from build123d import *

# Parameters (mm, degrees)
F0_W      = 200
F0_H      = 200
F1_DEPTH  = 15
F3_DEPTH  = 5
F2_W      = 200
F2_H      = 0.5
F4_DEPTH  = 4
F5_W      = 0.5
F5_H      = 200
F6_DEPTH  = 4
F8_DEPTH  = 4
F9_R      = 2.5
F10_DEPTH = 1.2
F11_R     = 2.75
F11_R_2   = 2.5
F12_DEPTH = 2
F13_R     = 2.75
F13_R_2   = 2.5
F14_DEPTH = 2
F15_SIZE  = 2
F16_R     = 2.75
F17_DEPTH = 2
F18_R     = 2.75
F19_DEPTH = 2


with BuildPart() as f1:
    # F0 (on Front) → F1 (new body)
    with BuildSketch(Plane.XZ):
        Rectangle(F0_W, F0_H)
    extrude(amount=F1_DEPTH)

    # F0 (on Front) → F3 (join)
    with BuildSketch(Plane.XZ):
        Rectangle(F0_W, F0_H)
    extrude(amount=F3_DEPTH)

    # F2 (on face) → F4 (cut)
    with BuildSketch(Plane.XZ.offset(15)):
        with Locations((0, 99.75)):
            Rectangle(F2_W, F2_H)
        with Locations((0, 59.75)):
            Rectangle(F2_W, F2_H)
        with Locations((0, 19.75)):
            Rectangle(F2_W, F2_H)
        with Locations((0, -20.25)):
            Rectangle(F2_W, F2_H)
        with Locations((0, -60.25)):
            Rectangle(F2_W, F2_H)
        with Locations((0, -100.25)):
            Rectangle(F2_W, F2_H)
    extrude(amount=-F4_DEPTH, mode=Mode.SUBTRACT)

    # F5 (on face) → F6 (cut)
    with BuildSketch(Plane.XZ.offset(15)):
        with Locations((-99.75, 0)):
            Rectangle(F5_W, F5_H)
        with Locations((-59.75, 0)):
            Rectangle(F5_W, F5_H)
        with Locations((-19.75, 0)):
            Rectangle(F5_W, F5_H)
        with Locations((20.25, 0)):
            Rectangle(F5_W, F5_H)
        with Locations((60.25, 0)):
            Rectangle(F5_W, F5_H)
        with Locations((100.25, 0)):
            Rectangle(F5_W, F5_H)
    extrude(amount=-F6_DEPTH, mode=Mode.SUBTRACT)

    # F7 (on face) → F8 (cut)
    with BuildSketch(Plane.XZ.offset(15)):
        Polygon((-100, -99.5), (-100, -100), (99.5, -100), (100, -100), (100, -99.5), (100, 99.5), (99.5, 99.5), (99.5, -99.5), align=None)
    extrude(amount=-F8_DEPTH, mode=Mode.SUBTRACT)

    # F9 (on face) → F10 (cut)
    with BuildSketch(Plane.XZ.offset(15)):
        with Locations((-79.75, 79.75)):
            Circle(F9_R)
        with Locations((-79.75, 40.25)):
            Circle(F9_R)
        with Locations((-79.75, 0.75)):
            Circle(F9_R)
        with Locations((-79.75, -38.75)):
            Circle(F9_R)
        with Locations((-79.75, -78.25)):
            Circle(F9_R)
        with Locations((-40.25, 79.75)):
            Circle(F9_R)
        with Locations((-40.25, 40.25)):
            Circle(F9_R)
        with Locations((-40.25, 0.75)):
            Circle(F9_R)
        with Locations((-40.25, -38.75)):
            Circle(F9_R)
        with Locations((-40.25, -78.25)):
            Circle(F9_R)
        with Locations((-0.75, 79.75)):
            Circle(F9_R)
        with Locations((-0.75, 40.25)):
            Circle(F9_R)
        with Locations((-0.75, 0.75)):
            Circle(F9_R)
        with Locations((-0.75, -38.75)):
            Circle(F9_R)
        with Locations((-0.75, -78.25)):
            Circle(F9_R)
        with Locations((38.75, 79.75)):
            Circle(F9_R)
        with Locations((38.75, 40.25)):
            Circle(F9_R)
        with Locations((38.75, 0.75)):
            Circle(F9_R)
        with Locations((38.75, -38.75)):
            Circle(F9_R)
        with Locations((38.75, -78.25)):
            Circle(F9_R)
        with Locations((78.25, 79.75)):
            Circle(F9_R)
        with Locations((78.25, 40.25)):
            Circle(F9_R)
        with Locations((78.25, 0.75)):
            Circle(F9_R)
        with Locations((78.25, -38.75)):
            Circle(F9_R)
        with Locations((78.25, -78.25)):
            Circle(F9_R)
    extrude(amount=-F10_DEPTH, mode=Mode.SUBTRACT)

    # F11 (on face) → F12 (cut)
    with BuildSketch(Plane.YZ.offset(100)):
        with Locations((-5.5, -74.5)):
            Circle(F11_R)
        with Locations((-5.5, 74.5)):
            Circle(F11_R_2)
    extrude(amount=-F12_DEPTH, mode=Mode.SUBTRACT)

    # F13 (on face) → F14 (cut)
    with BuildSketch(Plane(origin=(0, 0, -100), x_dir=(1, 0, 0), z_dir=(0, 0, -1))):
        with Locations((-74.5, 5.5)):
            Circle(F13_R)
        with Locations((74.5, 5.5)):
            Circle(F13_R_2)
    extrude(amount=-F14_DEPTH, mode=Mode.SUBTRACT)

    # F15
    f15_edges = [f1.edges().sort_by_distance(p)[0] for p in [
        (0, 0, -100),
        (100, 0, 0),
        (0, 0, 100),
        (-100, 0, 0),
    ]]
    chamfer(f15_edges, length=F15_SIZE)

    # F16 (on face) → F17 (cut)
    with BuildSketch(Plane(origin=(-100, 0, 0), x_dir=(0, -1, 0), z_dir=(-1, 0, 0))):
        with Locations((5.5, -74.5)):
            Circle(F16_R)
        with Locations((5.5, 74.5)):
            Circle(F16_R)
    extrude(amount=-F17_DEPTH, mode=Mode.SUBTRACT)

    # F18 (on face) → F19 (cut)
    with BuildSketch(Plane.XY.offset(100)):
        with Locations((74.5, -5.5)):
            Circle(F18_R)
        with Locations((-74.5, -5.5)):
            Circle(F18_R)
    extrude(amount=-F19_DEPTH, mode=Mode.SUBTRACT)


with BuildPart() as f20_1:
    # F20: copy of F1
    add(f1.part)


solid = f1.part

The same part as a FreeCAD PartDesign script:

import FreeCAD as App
import Part
import Sketcher
from FreeCAD import Vector


def edges_at(feature, points):
    """Names of the edges that pass closest to the given points."""
    edges = feature.Shape.Edges
    near = lambda p: min(range(len(edges)), key=lambda i: edges[i].distToShape(Part.Vertex(*p))[0])
    return sorted({f"Edge{near(p) + 1}" for p in points})

doc = App.newDocument("Part")
body = doc.addObject("PartDesign::Body", "Body")

# Sketch on XZ plane
sketch1 = doc.addObject("Sketcher::SketchObject", "Sketch")
body.addObject(sketch1)
sketch1.AttachmentSupport = (doc.XZ_Plane, [""])
sketch1.MapMode = "FlatFace"
sketch1.addGeometry([
    Part.LineSegment(Vector(-100, 100, 0), Vector(-100, -100, 0)),
    Part.LineSegment(Vector(-100, -100, 0), Vector(100, -100, 0)),
    Part.LineSegment(Vector(100, -100, 0), Vector(100, 100, 0)),
    Part.LineSegment(Vector(100, 100, 0), Vector(-100, 100, 0)),
], False)
sketch1.addConstraint([
    Sketcher.Constraint("Coincident", 0, 2, 1, 1),
    Sketcher.Constraint("Coincident", 1, 2, 2, 1),
    Sketcher.Constraint("Coincident", 2, 2, 3, 1),
    Sketcher.Constraint("Coincident", 3, 2, 0, 1),
    Sketcher.Constraint("Vertical", 0),
    Sketcher.Constraint("Horizontal", 1),
    Sketcher.Constraint("Vertical", 2),
    Sketcher.Constraint("Horizontal", 3),
    Sketcher.Constraint("Symmetric", 0, 2, 2, 2, -1, 1),
    Sketcher.Constraint("Equal", 3, 0),
    Sketcher.Constraint("DistanceX", 1, 1, 1, 2, 200.0),
])
pad1 = doc.addObject("PartDesign::Pad", "Pad")
body.addObject(pad1)
pad1.Profile = sketch1
pad1.Length = 15

# Sketch on XZ plane
sketch2 = doc.addObject("Sketcher::SketchObject", "Sketch001")
body.addObject(sketch2)
sketch2.AttachmentSupport = (doc.XZ_Plane, [""])
sketch2.MapMode = "FlatFace"
sketch2.addGeometry([
    Part.LineSegment(Vector(-100, 100, 0), Vector(-100, -100, 0)),
    Part.LineSegment(Vector(-100, -100, 0), Vector(100, -100, 0)),
    Part.LineSegment(Vector(100, -100, 0), Vector(100, 100, 0)),
    Part.LineSegment(Vector(100, 100, 0), Vector(-100, 100, 0)),
], False)
sketch2.addConstraint([
    Sketcher.Constraint("Coincident", 0, 2, 1, 1),
    Sketcher.Constraint("Coincident", 1, 2, 2, 1),
    Sketcher.Constraint("Coincident", 2, 2, 3, 1),
    Sketcher.Constraint("Coincident", 3, 2, 0, 1),
    Sketcher.Constraint("Vertical", 0),
    Sketcher.Constraint("Horizontal", 1),
    Sketcher.Constraint("Vertical", 2),
    Sketcher.Constraint("Horizontal", 3),
    Sketcher.Constraint("Symmetric", 0, 2, 2, 2, -1, 1),
    Sketcher.Constraint("Equal", 3, 0),
    Sketcher.Constraint("DistanceX", 1, 1, 1, 2, 200.0),
])
pad2 = doc.addObject("PartDesign::Pad", "Pad001")
body.addObject(pad2)
pad2.Profile = sketch2
pad2.Length = 5

# Sketch on XZ plane
sketch3 = doc.addObject("Sketcher::SketchObject", "Sketch002")
body.addObject(sketch3)
sketch3.AttachmentSupport = (doc.XZ_Plane, [""])
sketch3.MapMode = "FlatFace"
sketch3.AttachmentOffset = App.Placement(Vector(0, 0, 15), App.Rotation())
sketch3.addGeometry([
    Part.LineSegment(Vector(-100, 100, 0), Vector(-100, 99.5, 0)),  # 0
    Part.LineSegment(Vector(-100, 99.5, 0), Vector(100, 99.5, 0)),  # 1
    Part.LineSegment(Vector(100, 99.5, 0), Vector(100, 100, 0)),  # 2
    Part.LineSegment(Vector(100, 100, 0), Vector(-100, 100, 0)),  # 3
    Part.LineSegment(Vector(-100, 60, 0), Vector(-100, 59.5, 0)),  # 4
    Part.LineSegment(Vector(-100, 59.5, 0), Vector(100, 59.5, 0)),  # 5
    Part.LineSegment(Vector(100, 59.5, 0), Vector(100, 60, 0)),  # 6
    Part.LineSegment(Vector(100, 60, 0), Vector(-100, 60, 0)),  # 7
    Part.LineSegment(Vector(-100, 20, 0), Vector(-100, 19.5, 0)),  # 8
    Part.LineSegment(Vector(-100, 19.5, 0), Vector(100, 19.5, 0)),  # 9
    Part.LineSegment(Vector(100, 19.5, 0), Vector(100, 20, 0)),  # 10
    Part.LineSegment(Vector(100, 20, 0), Vector(-100, 20, 0)),  # 11
    Part.LineSegment(Vector(-100, -20, 0), Vector(-100, -20.5, 0)),  # 12
    Part.LineSegment(Vector(-100, -20.5, 0), Vector(100, -20.5, 0)),  # 13
    Part.LineSegment(Vector(100, -20.5, 0), Vector(100, -20, 0)),  # 14
    Part.LineSegment(Vector(100, -20, 0), Vector(-100, -20, 0)),  # 15
    Part.LineSegment(Vector(-100, -60, 0), Vector(-100, -60.5, 0)),  # 16
    Part.LineSegment(Vector(-100, -60.5, 0), Vector(100, -60.5, 0)),  # 17
    Part.LineSegment(Vector(100, -60.5, 0), Vector(100, -60, 0)),  # 18
    Part.LineSegment(Vector(100, -60, 0), Vector(-100, -60, 0)),  # 19
    Part.LineSegment(Vector(-100, -100, 0), Vector(-100, -100.5, 0)),  # 20
    Part.LineSegment(Vector(-100, -100.5, 0), Vector(100, -100.5, 0)),  # 21
    Part.LineSegment(Vector(100, -100.5, 0), Vector(100, -100, 0)),  # 22
    Part.LineSegment(Vector(100, -100, 0), Vector(-100, -100, 0)),  # 23
], False)
sketch3.addConstraint([
    Sketcher.Constraint("Coincident", 0, 2, 1, 1),
    Sketcher.Constraint("Coincident", 1, 2, 2, 1),
    Sketcher.Constraint("Coincident", 2, 2, 3, 1),
    Sketcher.Constraint("Coincident", 3, 2, 0, 1),
    Sketcher.Constraint("Coincident", 4, 2, 5, 1),
    Sketcher.Constraint("Coincident", 5, 2, 6, 1),
    Sketcher.Constraint("Coincident", 6, 2, 7, 1),
    Sketcher.Constraint("Coincident", 7, 2, 4, 1),
    Sketcher.Constraint("Coincident", 8, 2, 9, 1),
    Sketcher.Constraint("Coincident", 9, 2, 10, 1),
    Sketcher.Constraint("Coincident", 10, 2, 11, 1),
    Sketcher.Constraint("Coincident", 11, 2, 8, 1),
    Sketcher.Constraint("Coincident", 12, 2, 13, 1),
    Sketcher.Constraint("Coincident", 13, 2, 14, 1),
    Sketcher.Constraint("Coincident", 14, 2, 15, 1),
    Sketcher.Constraint("Coincident", 15, 2, 12, 1),
    Sketcher.Constraint("Coincident", 16, 2, 17, 1),
    Sketcher.Constraint("Coincident", 17, 2, 18, 1),
    Sketcher.Constraint("Coincident", 18, 2, 19, 1),
    Sketcher.Constraint("Coincident", 19, 2, 16, 1),
    Sketcher.Constraint("Coincident", 20, 2, 21, 1),
    Sketcher.Constraint("Coincident", 21, 2, 22, 1),
    Sketcher.Constraint("Coincident", 22, 2, 23, 1),
    Sketcher.Constraint("Coincident", 23, 2, 20, 1),
    Sketcher.Constraint("Vertical", 0),
    Sketcher.Constraint("Horizontal", 1),
    Sketcher.Constraint("Vertical", 2),
    Sketcher.Constraint("Horizontal", 3),
    Sketcher.Constraint("Vertical", 4),
    Sketcher.Constraint("Horizontal", 5),
    Sketcher.Constraint("Vertical", 6),
    Sketcher.Constraint("Horizontal", 7),
    Sketcher.Constraint("Vertical", 8),
    Sketcher.Constraint("Horizontal", 9),
    Sketcher.Constraint("Vertical", 10),
    Sketcher.Constraint("Horizontal", 11),
    Sketcher.Constraint("Vertical", 12),
    Sketcher.Constraint("Horizontal", 13),
    Sketcher.Constraint("Vertical", 14),
    Sketcher.Constraint("Horizontal", 15),
    Sketcher.Constraint("Vertical", 16),
    Sketcher.Constraint("Horizontal", 17),
    Sketcher.Constraint("Vertical", 18),
    Sketcher.Constraint("Horizontal", 19),
    Sketcher.Constraint("Vertical", 20),
    Sketcher.Constraint("Horizontal", 21),
    Sketcher.Constraint("Vertical", 22),
    Sketcher.Constraint("Horizontal", 23),
    Sketcher.Constraint("Symmetric", 11, 2, 14, 2, -1, 1),
    Sketcher.Constraint("Symmetric", 7, 2, 18, 2, -1, 1),
    Sketcher.Constraint("Symmetric", 3, 2, 22, 2, -1, 1),
    Sketcher.Constraint("Vertical", 3, 2, 4, 2),
    Sketcher.Constraint("Vertical", 2, 2, 5, 2),
    Sketcher.Constraint("Vertical", 7, 2, 8, 2),
    Sketcher.Constraint("Vertical", 6, 2, 9, 2),
    Sketcher.Constraint("Vertical", 11, 2, 12, 2),
    Sketcher.Constraint("Vertical", 10, 2, 13, 2),
    Sketcher.Constraint("Vertical", 15, 2, 16, 2),
    Sketcher.Constraint("Vertical", 19, 2, 20, 2),
    Sketcher.Constraint("Equal", 2, 4),
    Sketcher.Constraint("Equal", 6, 8),
    Sketcher.Constraint("Equal", 10, 12),
    Sketcher.Constraint("Equal", 14, 16),
    Sketcher.Constraint("Equal", 18, 20),
    Sketcher.Constraint("DistanceX", 1, 1, 1, 2, 200.0),
    Sketcher.Constraint("DistanceY", 0, 2, 0, 1, 0.5),
    Sketcher.Constraint("DistanceY", -1, 1, 2, 2, 100.0),
    Sketcher.Constraint("DistanceY", -1, 1, 6, 2, 60.0),
    Sketcher.Constraint("DistanceY", -1, 1, 10, 2, 20.0),
])
pocket1 = doc.addObject("PartDesign::Pocket", "Pocket")
body.addObject(pocket1)
pocket1.Profile = sketch3
pocket1.Length = 4

# Sketch on XZ plane
sketch4 = doc.addObject("Sketcher::SketchObject", "Sketch003")
body.addObject(sketch4)
sketch4.AttachmentSupport = (doc.XZ_Plane, [""])
sketch4.MapMode = "FlatFace"
sketch4.AttachmentOffset = App.Placement(Vector(0, 0, 15), App.Rotation())
sketch4.addGeometry([
    Part.LineSegment(Vector(-100, 100, 0), Vector(-100, -100, 0)),  # 0
    Part.LineSegment(Vector(-100, -100, 0), Vector(-99.5, -100, 0)),  # 1
    Part.LineSegment(Vector(-99.5, -100, 0), Vector(-99.5, 100, 0)),  # 2
    Part.LineSegment(Vector(-99.5, 100, 0), Vector(-100, 100, 0)),  # 3
    Part.LineSegment(Vector(-60, 100, 0), Vector(-60, -100, 0)),  # 4
    Part.LineSegment(Vector(-60, -100, 0), Vector(-59.5, -100, 0)),  # 5
    Part.LineSegment(Vector(-59.5, -100, 0), Vector(-59.5, 100, 0)),  # 6
    Part.LineSegment(Vector(-59.5, 100, 0), Vector(-60, 100, 0)),  # 7
    Part.LineSegment(Vector(-20, 100, 0), Vector(-20, -100, 0)),  # 8
    Part.LineSegment(Vector(-20, -100, 0), Vector(-19.5, -100, 0)),  # 9
    Part.LineSegment(Vector(-19.5, -100, 0), Vector(-19.5, 100, 0)),  # 10
    Part.LineSegment(Vector(-19.5, 100, 0), Vector(-20, 100, 0)),  # 11
    Part.LineSegment(Vector(20, 100, 0), Vector(20, -100, 0)),  # 12
    Part.LineSegment(Vector(20, -100, 0), Vector(20.5, -100, 0)),  # 13
    Part.LineSegment(Vector(20.5, -100, 0), Vector(20.5, 100, 0)),  # 14
    Part.LineSegment(Vector(20.5, 100, 0), Vector(20, 100, 0)),  # 15
    Part.LineSegment(Vector(60, 100, 0), Vector(60, -100, 0)),  # 16
    Part.LineSegment(Vector(60, -100, 0), Vector(60.5, -100, 0)),  # 17
    Part.LineSegment(Vector(60.5, -100, 0), Vector(60.5, 100, 0)),  # 18
    Part.LineSegment(Vector(60.5, 100, 0), Vector(60, 100, 0)),  # 19
    Part.LineSegment(Vector(100, 100, 0), Vector(100, -100, 0)),  # 20
    Part.LineSegment(Vector(100, -100, 0), Vector(100.5, -100, 0)),  # 21
    Part.LineSegment(Vector(100.5, -100, 0), Vector(100.5, 100, 0)),  # 22
    Part.LineSegment(Vector(100.5, 100, 0), Vector(100, 100, 0)),  # 23
], False)
sketch4.addConstraint([
    Sketcher.Constraint("Coincident", 0, 2, 1, 1),
    Sketcher.Constraint("Coincident", 1, 2, 2, 1),
    Sketcher.Constraint("Coincident", 2, 2, 3, 1),
    Sketcher.Constraint("Coincident", 3, 2, 0, 1),
    Sketcher.Constraint("Coincident", 4, 2, 5, 1),
    Sketcher.Constraint("Coincident", 5, 2, 6, 1),
    Sketcher.Constraint("Coincident", 6, 2, 7, 1),
    Sketcher.Constraint("Coincident", 7, 2, 4, 1),
    Sketcher.Constraint("Coincident", 8, 2, 9, 1),
    Sketcher.Constraint("Coincident", 9, 2, 10, 1),
    Sketcher.Constraint("Coincident", 10, 2, 11, 1),
    Sketcher.Constraint("Coincident", 11, 2, 8, 1),
    Sketcher.Constraint("Coincident", 12, 2, 13, 1),
    Sketcher.Constraint("Coincident", 13, 2, 14, 1),
    Sketcher.Constraint("Coincident", 14, 2, 15, 1),
    Sketcher.Constraint("Coincident", 15, 2, 12, 1),
    Sketcher.Constraint("Coincident", 16, 2, 17, 1),
    Sketcher.Constraint("Coincident", 17, 2, 18, 1),
    Sketcher.Constraint("Coincident", 18, 2, 19, 1),
    Sketcher.Constraint("Coincident", 19, 2, 16, 1),
    Sketcher.Constraint("Coincident", 20, 2, 21, 1),
    Sketcher.Constraint("Coincident", 21, 2, 22, 1),
    Sketcher.Constraint("Coincident", 22, 2, 23, 1),
    Sketcher.Constraint("Coincident", 23, 2, 20, 1),
    Sketcher.Constraint("Vertical", 0),
    Sketcher.Constraint("Horizontal", 1),
    Sketcher.Constraint("Vertical", 2),
    Sketcher.Constraint("Horizontal", 3),
    Sketcher.Constraint("Vertical", 4),
    Sketcher.Constraint("Horizontal", 5),
    Sketcher.Constraint("Vertical", 6),
    Sketcher.Constraint("Horizontal", 7),
    Sketcher.Constraint("Vertical", 8),
    Sketcher.Constraint("Horizontal", 9),
    Sketcher.Constraint("Vertical", 10),
    Sketcher.Constraint("Horizontal", 11),
    Sketcher.Constraint("Vertical", 12),
    Sketcher.Constraint("Horizontal", 13),
    Sketcher.Constraint("Vertical", 14),
    Sketcher.Constraint("Horizontal", 15),
    Sketcher.Constraint("Vertical", 16),
    Sketcher.Constraint("Horizontal", 17),
    Sketcher.Constraint("Vertical", 18),
    Sketcher.Constraint("Horizontal", 19),
    Sketcher.Constraint("Vertical", 20),
    Sketcher.Constraint("Horizontal", 21),
    Sketcher.Constraint("Vertical", 22),
    Sketcher.Constraint("Horizontal", 23),
    Sketcher.Constraint("Symmetric", 11, 2, 12, 2, -1, 1),
    Sketcher.Constraint("Symmetric", 7, 2, 16, 2, -1, 1),
    Sketcher.Constraint("Symmetric", 3, 2, 20, 2, -1, 1),
    Sketcher.Constraint("Horizontal", 1, 2, 4, 2),
    Sketcher.Constraint("Horizontal", 3, 2, 6, 2),
    Sketcher.Constraint("Horizontal", 5, 2, 8, 2),
    Sketcher.Constraint("Horizontal", 7, 2, 10, 2),
    Sketcher.Constraint("Horizontal", 9, 2, 12, 2),
    Sketcher.Constraint("Horizontal", 11, 2, 14, 2),
    Sketcher.Constraint("Horizontal", 15, 2, 18, 2),
    Sketcher.Constraint("Horizontal", 19, 2, 22, 2),
    Sketcher.Constraint("Equal", 3, 5),
    Sketcher.Constraint("Equal", 7, 9),
    Sketcher.Constraint("Equal", 11, 13),
    Sketcher.Constraint("Equal", 15, 17),
    Sketcher.Constraint("Equal", 19, 21),
    Sketcher.Constraint("DistanceY", 0, 2, 0, 1, 200.0),
    Sketcher.Constraint("DistanceX", 1, 1, 1, 2, 0.5),
    Sketcher.Constraint("DistanceX", 0, 2, -1, 1, 100.0),
    Sketcher.Constraint("DistanceX", 4, 2, -1, 1, 60.0),
    Sketcher.Constraint("DistanceX", 8, 2, -1, 1, 20.0),
])
pocket2 = doc.addObject("PartDesign::Pocket", "Pocket001")
body.addObject(pocket2)
pocket2.Profile = sketch4
pocket2.Length = 4

# Sketch on XZ plane
sketch5 = doc.addObject("Sketcher::SketchObject", "Sketch004")
body.addObject(sketch5)
sketch5.AttachmentSupport = (doc.XZ_Plane, [""])
sketch5.MapMode = "FlatFace"
sketch5.AttachmentOffset = App.Placement(Vector(0, 0, 15), App.Rotation())
sketch5.addGeometry([
    Part.LineSegment(Vector(-100, -99.5, 0), Vector(-100, -100, 0)),  # 0
    Part.LineSegment(Vector(-100, -100, 0), Vector(100, -100, 0)),  # 1
    Part.LineSegment(Vector(100, -100, 0), Vector(100, 99.5, 0)),  # 2
    Part.LineSegment(Vector(100, 99.5, 0), Vector(99.5, 99.5, 0)),  # 3
    Part.LineSegment(Vector(99.5, 99.5, 0), Vector(99.5, -99.5, 0)),  # 4
    Part.LineSegment(Vector(99.5, -99.5, 0), Vector(-100, -99.5, 0)),  # 5
], False)
sketch5.addConstraint([
    Sketcher.Constraint("Coincident", 0, 2, 1, 1),
    Sketcher.Constraint("Coincident", 1, 2, 2, 1),
    Sketcher.Constraint("Coincident", 2, 2, 3, 1),
    Sketcher.Constraint("Coincident", 3, 2, 4, 1),
    Sketcher.Constraint("Coincident", 4, 2, 5, 1),
    Sketcher.Constraint("Coincident", 5, 2, 0, 1),
    Sketcher.Constraint("Vertical", 0),
    Sketcher.Constraint("Horizontal", 1),
    Sketcher.Constraint("Vertical", 2),
    Sketcher.Constraint("Horizontal", 3),
    Sketcher.Constraint("Vertical", 4),
    Sketcher.Constraint("Horizontal", 5),
    Sketcher.Constraint("Symmetric", 2, 2, 5, 2, -1, 1),
    Sketcher.Constraint("Equal", 3, 0),
    Sketcher.Constraint("Equal", 5, 2),
    Sketcher.Constraint("DistanceX", 1, 1, 1, 2, 200.0),
    Sketcher.Constraint("DistanceY", 4, 2, 4, 1, 199.0),
])
pocket3 = doc.addObject("PartDesign::Pocket", "Pocket002")
body.addObject(pocket3)
pocket3.Profile = sketch5
pocket3.Length = 4

# Sketch on XZ plane
sketch6 = doc.addObject("Sketcher::SketchObject", "Sketch005")
body.addObject(sketch6)
sketch6.AttachmentSupport = (doc.XZ_Plane, [""])
sketch6.MapMode = "FlatFace"
sketch6.AttachmentOffset = App.Placement(Vector(0, 0, 15), App.Rotation())
sketch6.addGeometry([
    Part.Circle(Vector(-79.8, 79.8, 0), Vector(0, 0, 1), 2.5),  # 0
    Part.Circle(Vector(-79.8, 40.2, 0), Vector(0, 0, 1), 2.5),  # 1
    Part.Circle(Vector(-79.8, 0.8, 0), Vector(0, 0, 1), 2.5),  # 2
    Part.Circle(Vector(-79.8, -38.8, 0), Vector(0, 0, 1), 2.5),  # 3
    Part.Circle(Vector(-79.8, -78.2, 0), Vector(0, 0, 1), 2.5),  # 4
    Part.Circle(Vector(-40.2, 79.8, 0), Vector(0, 0, 1), 2.5),  # 5
    Part.Circle(Vector(-40.2, 40.2, 0), Vector(0, 0, 1), 2.5),  # 6
    Part.Circle(Vector(-40.2, 0.8, 0), Vector(0, 0, 1), 2.5),  # 7
    Part.Circle(Vector(-40.2, -38.8, 0), Vector(0, 0, 1), 2.5),  # 8
    Part.Circle(Vector(-40.2, -78.2, 0), Vector(0, 0, 1), 2.5),  # 9
    Part.Circle(Vector(-0.8, 79.8, 0), Vector(0, 0, 1), 2.5),  # 10
    Part.Circle(Vector(-0.8, 40.2, 0), Vector(0, 0, 1), 2.5),  # 11
    Part.Circle(Vector(-0.8, 0.8, 0), Vector(0, 0, 1), 2.5),  # 12
    Part.Circle(Vector(-0.8, -38.8, 0), Vector(0, 0, 1), 2.5),  # 13
    Part.Circle(Vector(-0.8, -78.2, 0), Vector(0, 0, 1), 2.5),  # 14
    Part.Circle(Vector(38.8, 79.8, 0), Vector(0, 0, 1), 2.5),  # 15
    Part.Circle(Vector(38.8, 40.2, 0), Vector(0, 0, 1), 2.5),  # 16
    Part.Circle(Vector(38.8, 0.8, 0), Vector(0, 0, 1), 2.5),  # 17
    Part.Circle(Vector(38.8, -38.8, 0), Vector(0, 0, 1), 2.5),  # 18
    Part.Circle(Vector(38.8, -78.2, 0), Vector(0, 0, 1), 2.5),  # 19
    Part.Circle(Vector(78.2, 79.8, 0), Vector(0, 0, 1), 2.5),  # 20
    Part.Circle(Vector(78.2, 40.2, 0), Vector(0, 0, 1), 2.5),  # 21
    Part.Circle(Vector(78.2, 0.8, 0), Vector(0, 0, 1), 2.5),  # 22
    Part.Circle(Vector(78.2, -38.8, 0), Vector(0, 0, 1), 2.5),  # 23
    Part.Circle(Vector(78.2, -78.2, 0), Vector(0, 0, 1), 2.5),  # 24
], False)
sketch6.addConstraint([
    Sketcher.Constraint("Equal", 0, 1),
    Sketcher.Constraint("Equal", 1, 2),
    Sketcher.Constraint("Equal", 2, 3),
    Sketcher.Constraint("Equal", 3, 4),
    Sketcher.Constraint("Equal", 4, 5),
    Sketcher.Constraint("Equal", 5, 6),
    Sketcher.Constraint("Equal", 6, 7),
    Sketcher.Constraint("Equal", 7, 8),
    Sketcher.Constraint("Equal", 8, 9),
    Sketcher.Constraint("Equal", 9, 10),
    Sketcher.Constraint("Equal", 10, 11),
    Sketcher.Constraint("Equal", 11, 12),
    Sketcher.Constraint("Equal", 12, 13),
    Sketcher.Constraint("Equal", 13, 14),
    Sketcher.Constraint("Equal", 14, 15),
    Sketcher.Constraint("Equal", 15, 16),
    Sketcher.Constraint("Equal", 16, 17),
    Sketcher.Constraint("Equal", 17, 18),
    Sketcher.Constraint("Equal", 18, 19),
    Sketcher.Constraint("Equal", 19, 20),
    Sketcher.Constraint("Equal", 20, 21),
    Sketcher.Constraint("Equal", 21, 22),
    Sketcher.Constraint("Equal", 22, 23),
    Sketcher.Constraint("Equal", 23, 24),
    Sketcher.Constraint("Horizontal", 0, 3, 5, 3),
    Sketcher.Constraint("Horizontal", 1, 3, 6, 3),
    Sketcher.Constraint("Horizontal", 2, 3, 7, 3),
    Sketcher.Constraint("Horizontal", 3, 3, 8, 3),
    Sketcher.Constraint("Horizontal", 4, 3, 9, 3),
    Sketcher.Constraint("Horizontal", 5, 3, 10, 3),
    Sketcher.Constraint("Horizontal", 6, 3, 11, 3),
    Sketcher.Constraint("Horizontal", 7, 3, 12, 3),
    Sketcher.Constraint("Horizontal", 8, 3, 13, 3),
    Sketcher.Constraint("Horizontal", 9, 3, 14, 3),
    Sketcher.Constraint("Horizontal", 10, 3, 15, 3),
    Sketcher.Constraint("Horizontal", 11, 3, 16, 3),
    Sketcher.Constraint("Horizontal", 12, 3, 17, 3),
    Sketcher.Constraint("Horizontal", 13, 3, 18, 3),
    Sketcher.Constraint("Horizontal", 14, 3, 19, 3),
    Sketcher.Constraint("Horizontal", 15, 3, 20, 3),
    Sketcher.Constraint("Horizontal", 16, 3, 21, 3),
    Sketcher.Constraint("Horizontal", 17, 3, 22, 3),
    Sketcher.Constraint("Horizontal", 18, 3, 23, 3),
    Sketcher.Constraint("Horizontal", 19, 3, 24, 3),
    Sketcher.Constraint("Vertical", 0, 3, 1, 3),
    Sketcher.Constraint("Vertical", 1, 3, 2, 3),
    Sketcher.Constraint("Vertical", 2, 3, 3, 3),
    Sketcher.Constraint("Vertical", 3, 3, 4, 3),
    Sketcher.Constraint("Vertical", 5, 3, 6, 3),
    Sketcher.Constraint("Vertical", 6, 3, 7, 3),
    Sketcher.Constraint("Vertical", 7, 3, 8, 3),
    Sketcher.Constraint("Vertical", 8, 3, 9, 3),
    Sketcher.Constraint("Vertical", 10, 3, 11, 3),
    Sketcher.Constraint("Vertical", 11, 3, 12, 3),
    Sketcher.Constraint("Vertical", 12, 3, 13, 3),
    Sketcher.Constraint("Vertical", 13, 3, 14, 3),
    Sketcher.Constraint("Vertical", 15, 3, 16, 3),
    Sketcher.Constraint("Vertical", 16, 3, 17, 3),
    Sketcher.Constraint("Vertical", 17, 3, 18, 3),
    Sketcher.Constraint("Vertical", 18, 3, 19, 3),
    Sketcher.Constraint("Vertical", 20, 3, 21, 3),
    Sketcher.Constraint("Vertical", 21, 3, 22, 3),
    Sketcher.Constraint("Vertical", 22, 3, 23, 3),
    Sketcher.Constraint("Vertical", 23, 3, 24, 3),
    Sketcher.Constraint("Diameter", 0, 5.0),
    Sketcher.Constraint("DistanceY", 2, 3, 0, 3, 79.0),
    Sketcher.Constraint("DistanceY", 3, 3, 1, 3, 79.0),
    Sketcher.Constraint("DistanceY", 4, 3, 2, 3, 79.0),
    Sketcher.Constraint("DistanceX", 0, 3, 10, 3, 79.0),
    Sketcher.Constraint("DistanceX", 5, 3, 15, 3, 79.0),
    Sketcher.Constraint("DistanceX", 10, 3, 20, 3, 79.0),
    Sketcher.Constraint("DistanceY", 1, 3, 0, 3, 39.5),
    Sketcher.Constraint("DistanceX", 0, 3, 5, 3, 39.5),
    Sketcher.Constraint("DistanceX", 0, 3, -1, 1, 79.75),
    Sketcher.Constraint("DistanceY", -1, 1, 0, 3, 79.75),
])
pocket4 = doc.addObject("PartDesign::Pocket", "Pocket003")
body.addObject(pocket4)
pocket4.Profile = sketch6
pocket4.Length = 1.2

# Sketch on YZ plane
sketch7 = doc.addObject("Sketcher::SketchObject", "Sketch006")
body.addObject(sketch7)
sketch7.AttachmentSupport = (doc.YZ_Plane, [""])
sketch7.MapMode = "FlatFace"
sketch7.AttachmentOffset = App.Placement(Vector(0, 0, 100), App.Rotation())
sketch7.addGeometry([
    Part.Circle(Vector(-5.5, -74.5, 0), Vector(0, 0, 1), 2.8),
    Part.Circle(Vector(-5.5, 74.5, 0), Vector(0, 0, 1), 2.5),
], False)
sketch7.addConstraint([
    Sketcher.Constraint("Symmetric", 0, 3, 1, 3, -1),
    Sketcher.Constraint("Diameter", 1, 5.0),
    Sketcher.Constraint("Diameter", 0, 5.5),
    Sketcher.Constraint("DistanceY", 0, 3, 1, 3, 149.0),
    Sketcher.Constraint("DistanceX", 0, 3, -1, 1, 5.5),
])
pocket5 = doc.addObject("PartDesign::Pocket", "Pocket004")
body.addObject(pocket5)
pocket5.Profile = sketch7
pocket5.Length = 2

# Sketch on XY plane
sketch8 = doc.addObject("Sketcher::SketchObject", "Sketch007")
body.addObject(sketch8)
sketch8.AttachmentSupport = (doc.XY_Plane, [""])
sketch8.MapMode = "FlatFace"
sketch8.AttachmentOffset = App.Placement(Vector(0, 0, -100), App.Rotation())
sketch8.addGeometry([
    Part.Circle(Vector(-74.5, -5.5, 0), Vector(0, 0, 1), 2.8),
    Part.Circle(Vector(74.5, -5.5, 0), Vector(0, 0, 1), 2.5),
], False)
sketch8.addConstraint([
    Sketcher.Constraint("Symmetric", 0, 3, 1, 3, -2),
    Sketcher.Constraint("Diameter", 1, 5.0),
    Sketcher.Constraint("Diameter", 0, 5.5),
    Sketcher.Constraint("DistanceX", 0, 3, 1, 3, 149.0),
    Sketcher.Constraint("DistanceY", 0, 3, -1, 1, 5.5),
])
pocket6 = doc.addObject("PartDesign::Pocket", "Pocket005")
body.addObject(pocket6)
pocket6.Profile = sketch8
pocket6.Length = 2
pocket6.Reversed = True
doc.recompute()

chamfer = doc.addObject("PartDesign::Chamfer", "Chamfer")
body.addObject(chamfer)
chamfer.Base = (pocket6, edges_at(pocket6, [
    (0, 0, -100),
    (100, 0, 0),
    (0, 0, 100),
    (-100, 0, 0),
]))
chamfer.Size = 2

# Sketch on YZ plane
sketch9 = doc.addObject("Sketcher::SketchObject", "Sketch008")
body.addObject(sketch9)
sketch9.AttachmentSupport = (doc.YZ_Plane, [""])
sketch9.MapMode = "FlatFace"
sketch9.AttachmentOffset = App.Placement(Vector(0, 0, -100), App.Rotation())
sketch9.addGeometry([
    Part.Circle(Vector(-5.5, -74.5, 0), Vector(0, 0, 1), 2.8),
    Part.Circle(Vector(-5.5, 74.5, 0), Vector(0, 0, 1), 2.8),
], False)
sketch9.addConstraint([
    Sketcher.Constraint("Equal", 0, 1),
    Sketcher.Constraint("Symmetric", 0, 3, 1, 3, -1),
    Sketcher.Constraint("Diameter", 0, 5.5),
    Sketcher.Constraint("DistanceY", 0, 3, 1, 3, 149.0),
    Sketcher.Constraint("DistanceX", 0, 3, -1, 1, 5.5),
])
pocket7 = doc.addObject("PartDesign::Pocket", "Pocket006")
body.addObject(pocket7)
pocket7.Profile = sketch9
pocket7.Length = 2
pocket7.Reversed = True

# Sketch on XY plane
sketch10 = doc.addObject("Sketcher::SketchObject", "Sketch009")
body.addObject(sketch10)
sketch10.AttachmentSupport = (doc.XY_Plane, [""])
sketch10.MapMode = "FlatFace"
sketch10.AttachmentOffset = App.Placement(Vector(0, 0, 100), App.Rotation())
sketch10.addGeometry([
    Part.Circle(Vector(74.5, -5.5, 0), Vector(0, 0, 1), 2.8),
    Part.Circle(Vector(-74.5, -5.5, 0), Vector(0, 0, 1), 2.8),
], False)
sketch10.addConstraint([
    Sketcher.Constraint("Equal", 0, 1),
    Sketcher.Constraint("Symmetric", 0, 3, 1, 3, -2),
    Sketcher.Constraint("Diameter", 0, 5.5),
    Sketcher.Constraint("DistanceX", 1, 3, 0, 3, 149.0),
    Sketcher.Constraint("DistanceY", 0, 3, -1, 1, 5.5),
])
pocket8 = doc.addObject("PartDesign::Pocket", "Pocket007")
body.addObject(pocket8)
pocket8.Profile = sketch10
pocket8.Length = 2
body2 = doc.addObject("PartDesign::Body", "Body001")
doc.recompute()

body2.BaseFeature = body
doc.recompute()
body.Visibility = False

doc.recompute()
